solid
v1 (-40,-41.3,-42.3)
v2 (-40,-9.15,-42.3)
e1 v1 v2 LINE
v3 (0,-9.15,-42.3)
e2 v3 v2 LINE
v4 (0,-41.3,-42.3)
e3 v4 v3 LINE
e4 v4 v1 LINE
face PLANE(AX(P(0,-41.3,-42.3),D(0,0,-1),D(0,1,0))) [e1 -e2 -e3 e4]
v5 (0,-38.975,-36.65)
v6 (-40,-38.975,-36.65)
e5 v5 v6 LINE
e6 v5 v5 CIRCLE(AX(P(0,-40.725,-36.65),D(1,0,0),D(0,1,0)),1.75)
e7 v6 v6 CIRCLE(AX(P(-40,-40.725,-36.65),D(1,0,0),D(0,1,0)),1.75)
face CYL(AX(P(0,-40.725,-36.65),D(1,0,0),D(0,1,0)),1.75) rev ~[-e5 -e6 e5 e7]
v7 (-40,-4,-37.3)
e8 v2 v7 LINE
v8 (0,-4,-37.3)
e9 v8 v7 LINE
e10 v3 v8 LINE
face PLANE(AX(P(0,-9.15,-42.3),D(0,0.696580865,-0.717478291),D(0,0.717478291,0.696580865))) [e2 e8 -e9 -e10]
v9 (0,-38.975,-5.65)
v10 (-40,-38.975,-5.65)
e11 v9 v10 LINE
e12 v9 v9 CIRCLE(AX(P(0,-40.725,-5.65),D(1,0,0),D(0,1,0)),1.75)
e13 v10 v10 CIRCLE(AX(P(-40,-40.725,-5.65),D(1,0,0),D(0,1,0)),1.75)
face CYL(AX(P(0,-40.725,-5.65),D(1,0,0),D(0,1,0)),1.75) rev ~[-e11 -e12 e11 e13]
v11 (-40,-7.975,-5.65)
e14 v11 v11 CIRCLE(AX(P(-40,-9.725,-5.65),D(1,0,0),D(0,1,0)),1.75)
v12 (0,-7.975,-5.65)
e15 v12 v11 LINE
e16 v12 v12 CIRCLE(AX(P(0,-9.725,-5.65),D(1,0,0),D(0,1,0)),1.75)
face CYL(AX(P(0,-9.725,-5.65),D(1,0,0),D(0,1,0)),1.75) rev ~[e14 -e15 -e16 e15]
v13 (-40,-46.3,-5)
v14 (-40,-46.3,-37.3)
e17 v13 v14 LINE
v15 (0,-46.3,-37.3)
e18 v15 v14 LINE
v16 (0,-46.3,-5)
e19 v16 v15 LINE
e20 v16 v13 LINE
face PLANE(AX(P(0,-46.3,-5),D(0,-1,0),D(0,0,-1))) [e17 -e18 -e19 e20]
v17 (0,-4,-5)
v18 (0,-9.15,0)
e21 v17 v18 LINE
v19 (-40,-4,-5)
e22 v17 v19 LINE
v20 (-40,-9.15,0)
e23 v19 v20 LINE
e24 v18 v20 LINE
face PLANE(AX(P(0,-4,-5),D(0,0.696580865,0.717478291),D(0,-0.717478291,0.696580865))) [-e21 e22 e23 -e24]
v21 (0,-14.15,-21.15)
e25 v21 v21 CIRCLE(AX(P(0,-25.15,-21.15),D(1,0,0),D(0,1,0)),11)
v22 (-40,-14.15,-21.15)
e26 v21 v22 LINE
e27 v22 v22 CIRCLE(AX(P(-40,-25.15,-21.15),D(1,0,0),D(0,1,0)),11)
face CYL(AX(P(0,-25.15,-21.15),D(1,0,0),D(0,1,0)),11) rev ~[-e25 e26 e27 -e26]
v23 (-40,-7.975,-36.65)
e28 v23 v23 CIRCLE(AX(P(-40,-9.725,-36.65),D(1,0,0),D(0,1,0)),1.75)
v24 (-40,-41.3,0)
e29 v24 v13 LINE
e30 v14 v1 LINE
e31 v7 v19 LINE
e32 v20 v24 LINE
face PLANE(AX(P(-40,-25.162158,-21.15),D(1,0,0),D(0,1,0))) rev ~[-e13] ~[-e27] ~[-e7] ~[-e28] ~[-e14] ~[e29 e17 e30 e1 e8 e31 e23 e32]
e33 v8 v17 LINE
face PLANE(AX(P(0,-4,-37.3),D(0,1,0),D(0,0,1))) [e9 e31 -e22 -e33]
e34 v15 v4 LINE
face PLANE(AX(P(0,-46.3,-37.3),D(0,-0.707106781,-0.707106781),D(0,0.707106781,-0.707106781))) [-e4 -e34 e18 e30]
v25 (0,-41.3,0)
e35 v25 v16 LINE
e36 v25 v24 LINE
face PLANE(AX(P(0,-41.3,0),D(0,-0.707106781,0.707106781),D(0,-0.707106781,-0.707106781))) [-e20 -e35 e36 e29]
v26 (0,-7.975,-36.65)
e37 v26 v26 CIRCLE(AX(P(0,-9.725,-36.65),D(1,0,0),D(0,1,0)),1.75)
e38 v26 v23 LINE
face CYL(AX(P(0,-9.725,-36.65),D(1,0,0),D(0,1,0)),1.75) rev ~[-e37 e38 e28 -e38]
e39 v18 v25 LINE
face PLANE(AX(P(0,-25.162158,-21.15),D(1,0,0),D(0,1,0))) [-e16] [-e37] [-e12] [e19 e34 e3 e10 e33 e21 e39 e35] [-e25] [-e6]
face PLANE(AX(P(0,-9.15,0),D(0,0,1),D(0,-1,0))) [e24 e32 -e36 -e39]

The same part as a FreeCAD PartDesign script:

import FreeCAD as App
import Part
import Sketcher
from FreeCAD import Vector

doc = App.newDocument("Part")
body = doc.addObject("PartDesign::Body", "Body")

# Sketch on YZ plane
sketch1 = doc.addObject("Sketcher::SketchObject", "Sketch")
body.addObject(sketch1)
sketch1.AttachmentSupport = (doc.YZ_Plane, [""])
sketch1.MapMode = "FlatFace"
sketch1.addGeometry([
    Part.LineSegment(Vector(-46.3, -37.3, 0), Vector(-41.3, -42.3, 0)),  # 0
    Part.LineSegment(Vector(-41.3, -42.3, 0), Vector(-9.2, -42.3, 0)),  # 1
    Part.LineSegment(Vector(-9.2, -42.3, 0), Vector(-4, -37.3, 0)),  # 2
    Part.LineSegment(Vector(-4, -37.3, 0), Vector(-4, -5, 0)),  # 3
    Part.LineSegment(Vector(-4, -5, 0), Vector(-9.2, 0, 0)),  # 4
    Part.LineSegment(Vector(-9.2, 0, 0), Vector(-41.3, 0, 0)),  # 5
    Part.LineSegment(Vector(-41.3, 0, 0), Vector(-46.3, -5, 0)),  # 6
    Part.LineSegment(Vector(-46.3, -5, 0), Vector(-46.3, -37.3, 0)),  # 7
    Part.Circle(Vector(-40.7, -36.6, 0), Vector(0, 0, 1), 1.8),  # 8
    Part.Circle(Vector(-9.7, -36.6, 0), Vector(0, 0, 1), 1.8),  # 9
    Part.Circle(Vector(-40.7, -5.7, 0), Vector(0, 0, 1), 1.8),  # 10
    Part.Circle(Vector(-25.1, -21.1, 0), Vector(0, 0, 1), 11),  # 11
    Part.Circle(Vector(-9.7, -5.7, 0), Vector(0, 0, 1), 1.8),  # 12
], False)
sketch1.addConstraint([
    Sketcher.Constraint("Coincident", 0, 2, 1, 1),
    Sketcher.Constraint("Coincident", 1, 2, 2, 1),
    Sketcher.Constraint("Coincident", 2, 2, 3, 1),
    Sketcher.Constraint("Coincident", 3, 2, 4, 1),
    Sketcher.Constraint("Coincident", 4, 2, 5, 1),
    Sketcher.Constraint("Coincident", 5, 2, 6, 1),
    Sketcher.Constraint("Coincident", 6, 2, 7, 1),
    Sketcher.Constraint("Coincident", 7, 2, 0, 1),
    Sketcher.Constraint("Horizontal", 1),
    Sketcher.Constraint("Vertical", 3),
    Sketcher.Constraint("Horizontal", 5),
    Sketcher.Constraint("Vertical", 7),
    Sketcher.Constraint("Equal", 8, 9),
    Sketcher.Constraint("Equal", 9, 10),
    Sketcher.Constraint("Equal", 10, 12),
    Sketcher.Constraint("PointOnObject", 4, 2, -1),
    Sketcher.Constraint("Perpendicular", 0, 6),
    Sketcher.Constraint("Horizontal", 8, 3, 9, 3),
    Sketcher.Constraint("Horizontal", 10, 3, 12, 3),
    Sketcher.Constraint("Horizontal", 3, 2, 6, 2),
    Sketcher.Constraint("Horizontal", 2, 2, 7, 2),
    Sketcher.Constraint("Vertical", 8, 3, 10, 3),
    Sketcher.Constraint("Vertical", 9, 3, 12, 3),
    Sketcher.Constraint("Vertical", 1, 2, 4, 2),
    Sketcher.Constraint("Vertical", 0, 2, 5, 2),
    Sketcher.Constraint("Equal", 2, 4),
    Sketcher.Constraint("Diameter", 11, 22.0),
    Sketcher.Constraint("Diameter", 8, 3.5),
    Sketcher.Constraint("DistanceY", 3, 1, 3, 2, 32.3),
    Sketcher.Constraint("DistanceX", 2, 2, -1, 1, 4.0),
    Sketcher.Constraint("DistanceY", 3, 2, -1, 1, 5.0),
    Sketcher.Constraint("DistanceX", 8, 3, 9, 3, 31.0),
    Sketcher.Constraint("DistanceY", 8, 3, 10, 3, 31.0),
    Sketcher.Constraint("DistanceX", 11, 3, 1, 2, 16.0),
    Sketcher.Constraint("DistanceX", 1, 1, 1, 2, 32.15),
    Sketcher.Constraint("DistanceX", 0, 2, -1, 1, 41.3),
    Sketcher.Constraint("DistanceY", 9, 3, 11, 3, 15.5),
    Sketcher.Constraint("DistanceY", 8, 3, -1, 1, 36.65),
    Sketcher.Constraint("DistanceX", 8, 3, -1, 1, 40.725),
])
pad1 = doc.addObject("PartDesign::Pad", "Pad")
body.addObject(pad1)
pad1.Profile = sketch1
pad1.Length = 40
pad1.Reversed = True

doc.recompute()
